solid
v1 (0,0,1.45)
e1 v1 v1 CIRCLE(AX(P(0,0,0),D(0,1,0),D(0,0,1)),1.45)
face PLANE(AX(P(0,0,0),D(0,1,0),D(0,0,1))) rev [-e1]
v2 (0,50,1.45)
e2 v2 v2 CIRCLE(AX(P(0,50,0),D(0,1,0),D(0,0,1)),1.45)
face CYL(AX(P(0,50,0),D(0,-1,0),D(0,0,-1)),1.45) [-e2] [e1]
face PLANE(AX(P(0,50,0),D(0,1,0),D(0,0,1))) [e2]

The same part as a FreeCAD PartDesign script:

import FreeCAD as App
import Part
import Sketcher

V = App.Vector
Q = App.Units.Quantity

doc = App.newDocument("Part")
body = doc.addObject("PartDesign::Body", "Body")

sketch1 = body.newObject("Sketcher::SketchObject", "Sketch")
sketch1.AttachmentSupport = (doc.getObject("XZ_Plane"), [""])
sketch1.MapMode = "FlatFace"
sketch1.addGeometry(Part.Circle(V(0, 0, 0), V(0, 0, 1), 1.45), False)
sketch1.addConstraint(Sketcher.Constraint("Coincident", 0, 3, -1, 1))
sketch1.addConstraint(Sketcher.Constraint("Diameter", 0, Q("2.9 mm")))
pad1 = body.newObject("PartDesign::Pad", "Pad")
pad1.Profile = sketch1
pad1.Length = 50
pad1.Reversed = True

doc.recompute()
